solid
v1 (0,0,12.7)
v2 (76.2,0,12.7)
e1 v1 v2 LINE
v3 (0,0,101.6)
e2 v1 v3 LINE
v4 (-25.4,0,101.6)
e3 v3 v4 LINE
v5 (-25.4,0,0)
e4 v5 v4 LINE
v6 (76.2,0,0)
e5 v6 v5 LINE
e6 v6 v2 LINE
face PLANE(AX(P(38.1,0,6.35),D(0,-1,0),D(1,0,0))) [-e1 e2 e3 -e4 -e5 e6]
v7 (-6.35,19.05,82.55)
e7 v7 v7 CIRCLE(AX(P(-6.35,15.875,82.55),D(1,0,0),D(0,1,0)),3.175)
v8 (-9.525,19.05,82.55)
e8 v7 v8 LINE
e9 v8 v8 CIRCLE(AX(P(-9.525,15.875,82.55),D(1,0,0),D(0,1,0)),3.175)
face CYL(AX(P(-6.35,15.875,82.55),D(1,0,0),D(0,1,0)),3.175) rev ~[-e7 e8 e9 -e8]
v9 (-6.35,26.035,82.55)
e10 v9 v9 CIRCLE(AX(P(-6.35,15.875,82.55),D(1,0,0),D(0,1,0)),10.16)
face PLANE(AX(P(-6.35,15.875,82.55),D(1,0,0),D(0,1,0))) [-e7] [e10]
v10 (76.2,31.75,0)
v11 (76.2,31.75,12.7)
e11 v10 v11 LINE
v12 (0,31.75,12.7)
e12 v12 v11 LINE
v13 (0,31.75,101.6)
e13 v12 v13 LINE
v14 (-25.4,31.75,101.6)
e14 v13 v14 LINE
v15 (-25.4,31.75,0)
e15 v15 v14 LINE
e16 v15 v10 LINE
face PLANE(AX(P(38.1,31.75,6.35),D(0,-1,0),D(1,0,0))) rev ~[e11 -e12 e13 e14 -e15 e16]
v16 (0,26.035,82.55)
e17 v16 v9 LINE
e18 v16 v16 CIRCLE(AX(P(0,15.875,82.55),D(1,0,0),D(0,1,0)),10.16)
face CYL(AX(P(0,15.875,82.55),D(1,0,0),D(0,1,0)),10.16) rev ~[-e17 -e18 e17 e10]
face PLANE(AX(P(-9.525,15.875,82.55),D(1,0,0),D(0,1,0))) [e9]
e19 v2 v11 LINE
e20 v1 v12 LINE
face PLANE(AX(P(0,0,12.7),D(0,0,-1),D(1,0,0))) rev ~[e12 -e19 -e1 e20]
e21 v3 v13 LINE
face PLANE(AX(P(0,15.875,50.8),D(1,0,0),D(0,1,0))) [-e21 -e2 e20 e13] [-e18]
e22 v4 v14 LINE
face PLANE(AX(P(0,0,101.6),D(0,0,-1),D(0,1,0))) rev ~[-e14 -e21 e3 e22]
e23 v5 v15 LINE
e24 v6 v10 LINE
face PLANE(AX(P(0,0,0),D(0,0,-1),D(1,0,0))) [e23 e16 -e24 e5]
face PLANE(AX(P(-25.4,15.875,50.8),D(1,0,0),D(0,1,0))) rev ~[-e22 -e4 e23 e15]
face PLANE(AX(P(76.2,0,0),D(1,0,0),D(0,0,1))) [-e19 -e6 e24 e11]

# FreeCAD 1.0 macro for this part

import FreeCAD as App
import Part
import Sketcher

V = App.Vector
Q = App.Units.Quantity

doc = App.newDocument("Part")
body = doc.addObject("PartDesign::Body", "Body")

# Sketch on YZ plane
sketch1 = doc.addObject("Sketcher::SketchObject", "Sketch")
body.addObject(sketch1)
sketch1.AttachmentSupport = (doc.YZ_Plane, [""])
sketch1.MapMode = "FlatFace"
sketch1.addGeometry(Part.LineSegment(V(0, 102, 0), V(0, 0, 0)), False)
sketch1.addGeometry(Part.LineSegment(V(0, 0, 0), V(32, 0, 0)), False)
sketch1.addGeometry(Part.LineSegment(V(32, 0, 0), V(32, 102, 0)), False)
sketch1.addGeometry(Part.LineSegment(V(32, 102, 0), V(0, 102, 0)), False)
sketch1.addConstraint(Sketcher.Constraint("Coincident", 0, 2, 1, 1))
sketch1.addConstraint(Sketcher.Constraint("Coincident", 1, 2, 2, 1))
sketch1.addConstraint(Sketcher.Constraint("Coincident", 2, 2, 3, 1))
sketch1.addConstraint(Sketcher.Constraint("Coincident", 3, 2, 0, 1))
sketch1.addConstraint(Sketcher.Constraint("Vertical", 0))
sketch1.addConstraint(Sketcher.Constraint("Horizontal", 1))
sketch1.addConstraint(Sketcher.Constraint("Vertical", 2))
sketch1.addConstraint(Sketcher.Constraint("Horizontal", 3))
sketch1.addConstraint(Sketcher.Constraint("Coincident", 0, 2, -1, 1))
sketch1.addConstraint(Sketcher.Constraint("DistanceY", 0, 2, 0, 1, Q("4 in")))
sketch1.addConstraint(Sketcher.Constraint("DistanceX", 1, 1, 1, 2, Q("1.25 in")))
pad1 = doc.addObject("PartDesign::Pad", "Pad")
body.addObject(pad1)
pad1.Profile = sketch1
pad1.Length = Q("1 in")
pad1.Reversed = True

# Sketch on YZ plane
sketch2 = doc.addObject("Sketcher::SketchObject", "Sketch001")
body.addObject(sketch2)
sketch2.AttachmentSupport = (doc.YZ_Plane, [""])
sketch2.MapMode = "FlatFace"
sketch2.addGeometry(Part.Circle(V(16, 83, 0), V(0, 0, 1), 10), False)
sketch2.addConstraint(Sketcher.Constraint("Diameter", 0, Q("0.8 in")))
sketch2.addConstraint(Sketcher.Constraint("DistanceY", -1, 1, 0, 3, Q("3.25 in")))
sketch2.addConstraint(Sketcher.Constraint("DistanceX", -1, 1, 0, 3, Q("0.625 in")))
pocket1 = doc.addObject("PartDesign::Pocket", "Pocket")
body.addObject(pocket1)
pocket1.Profile = sketch2
pocket1.Length = Q("0.25 in")

# Sketch on YZ plane
sketch3 = doc.addObject("Sketcher::SketchObject", "Sketch002")
body.addObject(sketch3)
sketch3.AttachmentSupport = (doc.YZ_Plane, [""])
sketch3.MapMode = "FlatFace"
sketch3.AttachmentOffset = App.Placement(V(0, 0, -0.25 * 25.4), App.Rotation())
sketch3.addGeometry(Part.Circle(V(15.9, 82.5, 0), V(0, 0, 1), 3.2), False)
sketch3.addConstraint(Sketcher.Constraint("Diameter", 0, Q("0.25 in")))
sketch3.addConstraint(Sketcher.Constraint("DistanceY", -1, 1, 0, 3, Q("3.25 in")))
sketch3.addConstraint(Sketcher.Constraint("DistanceX", -1, 1, 0, 3, Q("0.625 in")))
pocket2 = doc.addObject("PartDesign::Pocket", "Pocket001")
body.addObject(pocket2)
pocket2.Profile = sketch3
pocket2.Length = Q("0.125 in")

# Sketch on XZ plane
sketch4 = doc.addObject("Sketcher::SketchObject", "Sketch003")
body.addObject(sketch4)
sketch4.AttachmentSupport = (doc.XZ_Plane, [""])
sketch4.MapMode = "FlatFace"
sketch4.addGeometry(Part.LineSegment(V(0, 13, 0), V(0, 0, 0)), False)
sketch4.addGeometry(Part.LineSegment(V(0, 0, 0), V(76, 0, 0)), False)
sketch4.addGeometry(Part.LineSegment(V(76, 0, 0), V(76, 13, 0)), False)
sketch4.addGeometry(Part.LineSegment(V(76, 13, 0), V(0, 13, 0)), False)
sketch4.addConstraint(Sketcher.Constraint("Coincident", 0, 2, 1, 1))
sketch4.addConstraint(Sketcher.Constraint("Coincident", 1, 2, 2, 1))
sketch4.addConstraint(Sketcher.Constraint("Coincident", 2, 2, 3, 1))
sketch4.addConstraint(Sketcher.Constraint("Coincident", 3, 2, 0, 1))
sketch4.addConstraint(Sketcher.Constraint("Vertical", 0))
sketch4.addConstraint(Sketcher.Constraint("Horizontal", 1))
sketch4.addConstraint(Sketcher.Constraint("Vertical", 2))
sketch4.addConstraint(Sketcher.Constraint("Horizontal", 3))
sketch4.addConstraint(Sketcher.Constraint("Coincident", 0, 2, -1, 1))
sketch4.addConstraint(Sketcher.Constraint("DistanceX", 1, 1, 1, 2, Q("3 in")))
sketch4.addConstraint(Sketcher.Constraint("DistanceY", 0, 2, 0, 1, Q("0.5 in")))
pad2 = doc.addObject("PartDesign::Pad", "Pad001")
body.addObject(pad2)
pad2.Profile = sketch4
pad2.Length = Q("1.25 in")
pad2.Reversed = True

doc.recompute()
